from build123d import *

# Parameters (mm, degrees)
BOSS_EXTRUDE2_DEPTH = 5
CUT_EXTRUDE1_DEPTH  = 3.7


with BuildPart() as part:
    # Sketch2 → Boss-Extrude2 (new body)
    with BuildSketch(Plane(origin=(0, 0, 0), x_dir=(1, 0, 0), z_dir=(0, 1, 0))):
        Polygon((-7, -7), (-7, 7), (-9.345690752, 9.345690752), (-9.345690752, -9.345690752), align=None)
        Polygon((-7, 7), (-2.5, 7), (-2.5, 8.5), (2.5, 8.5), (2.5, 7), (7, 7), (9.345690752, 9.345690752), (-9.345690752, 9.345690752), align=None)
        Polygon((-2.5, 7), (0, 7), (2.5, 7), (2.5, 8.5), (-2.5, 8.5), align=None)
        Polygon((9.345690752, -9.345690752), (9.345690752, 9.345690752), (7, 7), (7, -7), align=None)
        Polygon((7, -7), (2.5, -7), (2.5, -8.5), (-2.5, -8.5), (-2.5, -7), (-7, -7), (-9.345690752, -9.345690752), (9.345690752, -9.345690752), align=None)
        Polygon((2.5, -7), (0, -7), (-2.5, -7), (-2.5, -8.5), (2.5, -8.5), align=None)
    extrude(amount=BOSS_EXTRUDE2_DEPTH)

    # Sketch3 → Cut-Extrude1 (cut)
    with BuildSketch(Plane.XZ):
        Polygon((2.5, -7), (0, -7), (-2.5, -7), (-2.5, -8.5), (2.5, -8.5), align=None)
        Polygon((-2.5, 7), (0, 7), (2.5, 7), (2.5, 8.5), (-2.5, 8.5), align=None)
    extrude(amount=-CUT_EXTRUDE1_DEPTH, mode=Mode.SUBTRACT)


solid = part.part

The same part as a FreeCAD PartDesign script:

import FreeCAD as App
import Part
import Sketcher

V = App.Vector

doc = App.newDocument("Part")
params = doc.addObject("Spreadsheet::Sheet", "Params")
for row, (alias, value) in enumerate([
    ("sketch1_width", "14 mm"),
    ("pad1_length", "5 mm"),
    ("sketch2_width", "5 mm"),
    ("sketch2_height", "1.5 mm"),
    ("pocket1_length", "3.7 mm"),
], start=1):
    params.set(f"A{row}", alias)
    params.set(f"B{row}", "=" + value)
    params.setAlias(f"B{row}", alias)

body = doc.addObject("PartDesign::Body", "Body")

sketch1 = body.newObject("Sketcher::SketchObject", "Sketch")
sketch1.AttachmentSupport = (doc.getObject("XZ_Plane"), [""])
sketch1.MapMode = "FlatFace"
sketch1.addGeometry([
    Part.LineSegment(V(9, 9, 0), V(9, -9, 0)),
    Part.LineSegment(V(9, -9, 0), V(-9, -9, 0)),
    Part.LineSegment(V(-9, -9, 0), V(-9, 9, 0)),
    Part.LineSegment(V(-9, 9, 0), V(9, 9, 0)),
    Part.LineSegment(V(-7, 7, 0), V(-7, -7, 0)),
    Part.LineSegment(V(-7, -7, 0), V(7, -7, 0)),
    Part.LineSegment(V(7, -7, 0), V(7, 7, 0)),
    Part.LineSegment(V(7, 7, 0), V(-7, 7, 0)),
], False)
sketch1.addConstraint([
    Sketcher.Constraint("Coincident", 0, 2, 1, 1),
    Sketcher.Constraint("Coincident", 1, 2, 2, 1),
    Sketcher.Constraint("Coincident", 2, 2, 3, 1),
    Sketcher.Constraint("Coincident", 3, 2, 0, 1),
    Sketcher.Constraint("Coincident", 4, 2, 5, 1),
    Sketcher.Constraint("Coincident", 5, 2, 6, 1),
    Sketcher.Constraint("Coincident", 6, 2, 7, 1),
    Sketcher.Constraint("Coincident", 7, 2, 4, 1),
    Sketcher.Constraint("Vertical", 0),
    Sketcher.Constraint("Horizontal", 1),
    Sketcher.Constraint("Vertical", 2),
    Sketcher.Constraint("Horizontal", 3),
    Sketcher.Constraint("Vertical", 4),
    Sketcher.Constraint("Horizontal", 5),
    Sketcher.Constraint("Vertical", 6),
    Sketcher.Constraint("Horizontal", 7),
    Sketcher.Constraint("Symmetric", 0, 2, 2, 2, -1, 1),
    Sketcher.Constraint("Symmetric", 4, 2, 6, 2, -1, 1),
    Sketcher.Constraint("Equal", 3, 0),
    Sketcher.Constraint("Equal", 7, 4),
    Sketcher.Constraint("DistanceX", 5, 1, 5, 2, 14.0),
    Sketcher.Constraint("DistanceX", 1, 2, 1, 1, 18.691382),
])
sketch1.setExpression("Constraints[20]", "Params.sketch1_width")
pad1 = body.newObject("PartDesign::Pad", "Pad")
pad1.Profile = sketch1
pad1.setExpression("Length", "Params.pad1_length")
pad1.Reversed = True

sketch2 = body.newObject("Sketcher::SketchObject", "Sketch001")
sketch2.AttachmentSupport = (doc.getObject("XZ_Plane"), [""])
sketch2.MapMode = "FlatFace"
sketch2.addGeometry([
    Part.LineSegment(V(2.5, -7, 0), V(-2.5, -7, 0)),
    Part.LineSegment(V(-2.5, -7, 0), V(-2.5, -8.5, 0)),
    Part.LineSegment(V(-2.5, -8.5, 0), V(2.5, -8.5, 0)),
    Part.LineSegment(V(2.5, -8.5, 0), V(2.5, -7, 0)),
    Part.LineSegment(V(-2.5, 7, 0), V(2.5, 7, 0)),
    Part.LineSegment(V(2.5, 7, 0), V(2.5, 8.5, 0)),
    Part.LineSegment(V(2.5, 8.5, 0), V(-2.5, 8.5, 0)),
    Part.LineSegment(V(-2.5, 8.5, 0), V(-2.5, 7, 0)),
], False)
sketch2.addConstraint([
    Sketcher.Constraint("Coincident", 0, 2, 1, 1),
    Sketcher.Constraint("Coincident", 1, 2, 2, 1),
    Sketcher.Constraint("Coincident", 2, 2, 3, 1),
    Sketcher.Constraint("Coincident", 3, 2, 0, 1),
    Sketcher.Constraint("Coincident", 4, 2, 5, 1),
    Sketcher.Constraint("Coincident", 5, 2, 6, 1),
    Sketcher.Constraint("Coincident", 6, 2, 7, 1),
    Sketcher.Constraint("Coincident", 7, 2, 4, 1),
    Sketcher.Constraint("Horizontal", 0),
    Sketcher.Constraint("Vertical", 1),
    Sketcher.Constraint("Horizontal", 2),
    Sketcher.Constraint("Vertical", 3),
    Sketcher.Constraint("Horizontal", 4),
    Sketcher.Constraint("Vertical", 5),
    Sketcher.Constraint("Horizontal", 6),
    Sketcher.Constraint("Vertical", 7),
    Sketcher.Constraint("Symmetric", 0, 2, 4, 2, -1, 1),
    Sketcher.Constraint("Symmetric", 2, 2, 6, 2, -1, 1),
    Sketcher.Constraint("Vertical", 3, 2, 4, 2),
    Sketcher.Constraint("DistanceX", 0, 2, 0, 1, 5.0),
    Sketcher.Constraint("DistanceY", 1, 2, 1, 1, 1.5),
    Sketcher.Constraint("DistanceY", 0, 2, -1, 1, 7.0),
])
sketch2.setExpression("Constraints[19]", "Params.sketch2_width")
sketch2.setExpression("Constraints[20]", "Params.sketch2_height")
pocket1 = body.newObject("PartDesign::Pocket", "Pocket")
pocket1.Profile = sketch2
pocket1.setExpression("Length", "Params.pocket1_length")

doc.recompute()
